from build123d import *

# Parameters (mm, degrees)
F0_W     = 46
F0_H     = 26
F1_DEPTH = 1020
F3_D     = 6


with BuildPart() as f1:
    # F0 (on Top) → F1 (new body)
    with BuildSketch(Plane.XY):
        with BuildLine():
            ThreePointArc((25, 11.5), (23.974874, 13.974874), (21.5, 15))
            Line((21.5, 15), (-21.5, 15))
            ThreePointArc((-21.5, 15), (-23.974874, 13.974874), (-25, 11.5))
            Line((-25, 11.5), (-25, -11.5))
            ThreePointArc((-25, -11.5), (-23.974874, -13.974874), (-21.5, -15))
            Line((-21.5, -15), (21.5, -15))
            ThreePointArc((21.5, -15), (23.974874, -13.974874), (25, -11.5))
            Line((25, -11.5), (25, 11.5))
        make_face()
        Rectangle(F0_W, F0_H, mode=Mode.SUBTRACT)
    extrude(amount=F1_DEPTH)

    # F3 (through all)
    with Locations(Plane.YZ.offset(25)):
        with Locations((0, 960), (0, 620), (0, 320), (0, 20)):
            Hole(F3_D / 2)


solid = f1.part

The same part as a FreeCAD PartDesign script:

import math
import FreeCAD as App
import Part
import Sketcher
from FreeCAD import Vector


def add_polygon(sketch, points):
    """Adds a closed chain of lines whose ends are joined by coincident constraints."""
    first, n = sketch.GeometryCount, len(points)
    for a, b in zip(points, points[1:] + points[:1]):
        sketch.addGeometry(Part.LineSegment(App.Vector(*a, 0), App.Vector(*b, 0)), False)
    for i in range(n):
        sketch.addConstraint(Sketcher.Constraint("Coincident", first + i, 2, first + (i + 1) % n, 1))

doc = App.newDocument("Part")
body = doc.addObject("PartDesign::Body", "Body")

sketch1 = doc.addObject("Sketcher::SketchObject", "Sketch")
body.addObject(sketch1)
sketch1.AttachmentSupport = (doc.XY_Plane, [""])
sketch1.MapMode = "FlatFace"
sketch1.addGeometry(Part.ArcOfCircle(Part.Circle(Vector(21.500001, 11.500001, 0), Vector(0, 0, 1), 3.499999), math.radians(-0.000015), math.radians(90.000015)), False)
sketch1.addGeometry(Part.LineSegment(Vector(21.5, 15, 0), Vector(-21.5, 15, 0)), False)
sketch1.addGeometry(Part.ArcOfCircle(Part.Circle(Vector(-21.500001, 11.500001, 0), Vector(0, 0, 1), 3.499999), math.radians(89.999985), math.radians(180.000015)), False)
sketch1.addGeometry(Part.LineSegment(Vector(-25, 11.5, 0), Vector(-25, -11.5, 0)), False)
sketch1.addGeometry(Part.ArcOfCircle(Part.Circle(Vector(-21.500001, -11.500001, 0), Vector(0, 0, 1), 3.499999), math.radians(179.999985), math.radians(270.000015)), False)
sketch1.addGeometry(Part.LineSegment(Vector(-21.5, -15, 0), Vector(21.5, -15, 0)), False)
sketch1.addGeometry(Part.ArcOfCircle(Part.Circle(Vector(21.500001, -11.500001, 0), Vector(0, 0, 1), 3.499999), math.radians(-90.000015), math.radians(0.000015)), False)
sketch1.addGeometry(Part.LineSegment(Vector(25, -11.5, 0), Vector(25, 11.5, 0)), False)
add_polygon(sketch1, [(23, -13), (-23, -13), (-23, 13), (23, 13)])
sketch1.addConstraint([
    Sketcher.Constraint("Tangent", 0, 2, 1, 1),
    Sketcher.Constraint("Tangent", 1, 2, 2, 1),
    Sketcher.Constraint("Tangent", 2, 2, 3, 1),
    Sketcher.Constraint("Tangent", 3, 2, 4, 1),
    Sketcher.Constraint("Tangent", 4, 2, 5, 1),
    Sketcher.Constraint("Tangent", 5, 2, 6, 1),
    Sketcher.Constraint("Tangent", 6, 2, 7, 1),
    Sketcher.Constraint("Tangent", 7, 2, 0, 1),
    Sketcher.Constraint("Horizontal", 1),
    Sketcher.Constraint("Vertical", 3),
    Sketcher.Constraint("Horizontal", 5),
    Sketcher.Constraint("Vertical", 7),
    Sketcher.Constraint("Horizontal", 8),
    Sketcher.Constraint("Vertical", 9),
    Sketcher.Constraint("Horizontal", 10),
    Sketcher.Constraint("Vertical", 11),
    Sketcher.Constraint("Equal", 0, 2),
    Sketcher.Constraint("Equal", 2, 4),
    Sketcher.Constraint("Equal", 4, 6),
    Sketcher.Constraint("Symmetric", 0, 3, 4, 3, -1, 1),
    Sketcher.Constraint("Symmetric", 8, 2, 10, 2, -1, 1),
    Sketcher.Constraint("Radius", 0, 3.499999),
    Sketcher.Constraint("DistanceX", 1, 2, 1, 1, 43.0),
    Sketcher.Constraint("DistanceX", 8, 2, 8, 1, 46.0),
    Sketcher.Constraint("DistanceY", 3, 2, 3, 1, 23.0),
    Sketcher.Constraint("DistanceY", 9, 1, 9, 2, 26.0),
])
pad1 = doc.addObject("PartDesign::Pad", "Pad")
body.addObject(pad1)
pad1.Profile = sketch1
pad1.Length = 1020

sketch2 = doc.addObject("Sketcher::SketchObject", "Sketch001")
body.addObject(sketch2)
sketch2.AttachmentSupport = (doc.YZ_Plane, [""])
sketch2.MapMode = "FlatFace"
sketch2.AttachmentOffset = App.Placement(Vector(0, 0, 25), App.Rotation())
sketch2.addGeometry([
    Part.Circle(Vector(0, 960, 0), Vector(0, 0, 1), 3),
    Part.Circle(Vector(0, 620, 0), Vector(0, 0, 1), 3),
    Part.Circle(Vector(0, 320, 0), Vector(0, 0, 1), 3),
    Part.Circle(Vector(0, 20, 0), Vector(0, 0, 1), 3),
], False)
sketch2.addConstraint([
    Sketcher.Constraint("Equal", 0, 1),
    Sketcher.Constraint("Equal", 1, 2),
    Sketcher.Constraint("Equal", 2, 3),
    Sketcher.Constraint("PointOnObject", 0, 3, -2),
    Sketcher.Constraint("PointOnObject", 1, 3, -2),
    Sketcher.Constraint("PointOnObject", 2, 3, -2),
    Sketcher.Constraint("PointOnObject", 3, 3, -2),
    Sketcher.Constraint("Diameter", 0, 6.0),
    Sketcher.Constraint("DistanceY", -1, 1, 0, 3, 960.0),
    Sketcher.Constraint("DistanceY", -1, 1, 1, 3, 620.0),
    Sketcher.Constraint("DistanceY", -1, 1, 2, 3, 320.0),
    Sketcher.Constraint("DistanceY", -1, 1, 3, 3, 20.0),
])
doc.recompute()
hole = doc.addObject("PartDesign::Hole", "Hole")
body.addObject(hole)
hole.Profile = sketch2
hole.ThreadType = "None"
hole.Diameter = 6
hole.DepthType = "ThroughAll"

doc.recompute()
